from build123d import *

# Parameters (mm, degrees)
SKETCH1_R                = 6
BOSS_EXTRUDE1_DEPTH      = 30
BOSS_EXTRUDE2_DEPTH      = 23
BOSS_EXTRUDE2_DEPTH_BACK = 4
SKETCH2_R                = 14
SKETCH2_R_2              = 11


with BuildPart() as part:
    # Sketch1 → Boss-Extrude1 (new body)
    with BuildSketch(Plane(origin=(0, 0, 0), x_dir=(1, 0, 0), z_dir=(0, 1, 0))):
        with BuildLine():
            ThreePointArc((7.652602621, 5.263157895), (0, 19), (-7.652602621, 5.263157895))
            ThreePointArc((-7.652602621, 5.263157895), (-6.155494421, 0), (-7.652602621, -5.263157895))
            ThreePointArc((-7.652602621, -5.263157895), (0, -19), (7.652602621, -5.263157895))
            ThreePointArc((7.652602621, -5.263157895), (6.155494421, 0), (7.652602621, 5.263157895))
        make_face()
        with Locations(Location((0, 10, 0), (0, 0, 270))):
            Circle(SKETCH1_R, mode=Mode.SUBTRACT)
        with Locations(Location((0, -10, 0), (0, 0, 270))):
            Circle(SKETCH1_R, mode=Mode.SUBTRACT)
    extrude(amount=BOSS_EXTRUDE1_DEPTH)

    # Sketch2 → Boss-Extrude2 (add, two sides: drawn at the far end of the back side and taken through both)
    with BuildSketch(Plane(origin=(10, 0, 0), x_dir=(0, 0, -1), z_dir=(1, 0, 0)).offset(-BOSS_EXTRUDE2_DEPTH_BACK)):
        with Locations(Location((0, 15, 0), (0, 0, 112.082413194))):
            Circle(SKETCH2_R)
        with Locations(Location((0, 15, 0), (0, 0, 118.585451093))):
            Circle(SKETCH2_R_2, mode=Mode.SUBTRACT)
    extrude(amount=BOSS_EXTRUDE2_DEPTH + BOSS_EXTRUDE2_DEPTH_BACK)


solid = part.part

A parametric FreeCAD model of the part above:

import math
import FreeCAD as App
import Part
import Sketcher
from FreeCAD import Vector
Q = App.Units.Quantity

doc = App.newDocument("Part")
params = doc.addObject("Spreadsheet::Sheet", "Params")
for row, (alias, value) in enumerate([
    ("sketch1_diameter", "12 mm"),
    ("sketch1_radius", "9 mm"),
    ("sketch1_radius2", "10 mm"),
    ("pad1_length", "30 mm"),
    ("sketch2_diameter", "28 mm"),
    ("sketch2_diameter2", "22 mm"),
    ("pad2_length", "23 mm"),
    ("pad2_length2", "4 mm"),
], start=1):
    params.set(f"A{row}", alias)
    params.set(f"B{row}", "=" + value)
    params.setAlias(f"B{row}", alias)

body = doc.addObject("PartDesign::Body", "Body")

sketch1 = doc.addObject("Sketcher::SketchObject", "Sketch")
body.addObject(sketch1)
sketch1.AttachmentSupport = (doc.XZ_Plane, [""])
sketch1.MapMode = "FlatFace"
sketch1.addGeometry([
    Part.ArcOfCircle(Part.Circle(Vector(0, -10, 0), Vector(0, 0, 1), 9), math.radians(148), math.radians(392)),
    Part.ArcOfCircle(Part.Circle(Vector(-16, 0, 0), Vector(0, 0, 1), 10), math.radians(-32), math.radians(32)),
    Part.ArcOfCircle(Part.Circle(Vector(0, 10, 0), Vector(0, 0, 1), 9), math.radians(-32), math.radians(212)),
    Part.ArcOfCircle(Part.Circle(Vector(16, 0, 0), Vector(0, 0, 1), 10), math.radians(148), math.radians(212)),
    Part.Circle(Vector(0, 10, 0), Vector(0, 0, 1), 6),
    Part.Circle(Vector(0, -10, 0), Vector(0, 0, 1), 6),
], False)
sketch1.addConstraint([
    Sketcher.Constraint("Tangent", 0, 1, 1, 1),
    Sketcher.Constraint("Tangent", 1, 2, 2, 2),
    Sketcher.Constraint("Tangent", 2, 1, 3, 1),
    Sketcher.Constraint("Tangent", 3, 2, 0, 2),
    Sketcher.Constraint("Coincident", 4, 3, 2, 3),
    Sketcher.Constraint("Coincident", 5, 3, 0, 3),
    Sketcher.Constraint("Equal", 0, 2),
    Sketcher.Constraint("Equal", 1, 3),
    Sketcher.Constraint("Equal", 4, 5),
    Sketcher.Constraint("Symmetric", 0, 3, 2, 3, -1, 1),
    Sketcher.Constraint("PointOnObject", 0, 3, -2),
    Sketcher.Constraint("Diameter", 4, Q("12 mm")),
    Sketcher.Constraint("Radius", 0, Q("9 mm")),
    Sketcher.Constraint("Radius", 1, Q("10 mm")),
    Sketcher.Constraint("DistanceY", 0, 3, -1, 1, Q("10 mm")),
])
sketch1.setExpression("Constraints[11]", "Params.sketch1_diameter")
sketch1.setExpression("Constraints[12]", "Params.sketch1_radius")
sketch1.setExpression("Constraints[13]", "Params.sketch1_radius2")
pad1 = doc.addObject("PartDesign::Pad", "Pad")
body.addObject(pad1)
pad1.Profile = sketch1
pad1.setExpression("Length", "Params.pad1_length")
pad1.Reversed = True

sketch2 = doc.addObject("Sketcher::SketchObject", "Sketch001")
body.addObject(sketch2)
sketch2.AttachmentSupport = (doc.YZ_Plane, [""])
sketch2.MapMode = "FlatFace"
sketch2.AttachmentOffset = App.Placement(Vector(0, 0, 10), App.Rotation())
sketch2.addGeometry([
    Part.Circle(Vector(15, 0, 0), Vector(0, 0, 1), 14),
    Part.Circle(Vector(15, 0, 0), Vector(0, 0, 1), 11),
], False)
sketch2.addConstraint([
    Sketcher.Constraint("Coincident", 1, 3, 0, 3),
    Sketcher.Constraint("PointOnObject", 0, 3, -1),
    Sketcher.Constraint("Diameter", 0, Q("28 mm")),
    Sketcher.Constraint("Diameter", 1, Q("22 mm")),
    Sketcher.Constraint("DistanceX", -1, 1, 0, 3, Q("15 mm")),
])
sketch2.setExpression("Constraints[2]", "Params.sketch2_diameter")
sketch2.setExpression("Constraints[3]", "Params.sketch2_diameter2")
pad2 = doc.addObject("PartDesign::Pad", "Pad001")
body.addObject(pad2)
pad2.Profile = sketch2
pad2.Type = "TwoLengths"
pad2.setExpression("Length", "Params.pad2_length")
pad2.setExpression("Length2", "Params.pad2_length2")

doc.recompute()
